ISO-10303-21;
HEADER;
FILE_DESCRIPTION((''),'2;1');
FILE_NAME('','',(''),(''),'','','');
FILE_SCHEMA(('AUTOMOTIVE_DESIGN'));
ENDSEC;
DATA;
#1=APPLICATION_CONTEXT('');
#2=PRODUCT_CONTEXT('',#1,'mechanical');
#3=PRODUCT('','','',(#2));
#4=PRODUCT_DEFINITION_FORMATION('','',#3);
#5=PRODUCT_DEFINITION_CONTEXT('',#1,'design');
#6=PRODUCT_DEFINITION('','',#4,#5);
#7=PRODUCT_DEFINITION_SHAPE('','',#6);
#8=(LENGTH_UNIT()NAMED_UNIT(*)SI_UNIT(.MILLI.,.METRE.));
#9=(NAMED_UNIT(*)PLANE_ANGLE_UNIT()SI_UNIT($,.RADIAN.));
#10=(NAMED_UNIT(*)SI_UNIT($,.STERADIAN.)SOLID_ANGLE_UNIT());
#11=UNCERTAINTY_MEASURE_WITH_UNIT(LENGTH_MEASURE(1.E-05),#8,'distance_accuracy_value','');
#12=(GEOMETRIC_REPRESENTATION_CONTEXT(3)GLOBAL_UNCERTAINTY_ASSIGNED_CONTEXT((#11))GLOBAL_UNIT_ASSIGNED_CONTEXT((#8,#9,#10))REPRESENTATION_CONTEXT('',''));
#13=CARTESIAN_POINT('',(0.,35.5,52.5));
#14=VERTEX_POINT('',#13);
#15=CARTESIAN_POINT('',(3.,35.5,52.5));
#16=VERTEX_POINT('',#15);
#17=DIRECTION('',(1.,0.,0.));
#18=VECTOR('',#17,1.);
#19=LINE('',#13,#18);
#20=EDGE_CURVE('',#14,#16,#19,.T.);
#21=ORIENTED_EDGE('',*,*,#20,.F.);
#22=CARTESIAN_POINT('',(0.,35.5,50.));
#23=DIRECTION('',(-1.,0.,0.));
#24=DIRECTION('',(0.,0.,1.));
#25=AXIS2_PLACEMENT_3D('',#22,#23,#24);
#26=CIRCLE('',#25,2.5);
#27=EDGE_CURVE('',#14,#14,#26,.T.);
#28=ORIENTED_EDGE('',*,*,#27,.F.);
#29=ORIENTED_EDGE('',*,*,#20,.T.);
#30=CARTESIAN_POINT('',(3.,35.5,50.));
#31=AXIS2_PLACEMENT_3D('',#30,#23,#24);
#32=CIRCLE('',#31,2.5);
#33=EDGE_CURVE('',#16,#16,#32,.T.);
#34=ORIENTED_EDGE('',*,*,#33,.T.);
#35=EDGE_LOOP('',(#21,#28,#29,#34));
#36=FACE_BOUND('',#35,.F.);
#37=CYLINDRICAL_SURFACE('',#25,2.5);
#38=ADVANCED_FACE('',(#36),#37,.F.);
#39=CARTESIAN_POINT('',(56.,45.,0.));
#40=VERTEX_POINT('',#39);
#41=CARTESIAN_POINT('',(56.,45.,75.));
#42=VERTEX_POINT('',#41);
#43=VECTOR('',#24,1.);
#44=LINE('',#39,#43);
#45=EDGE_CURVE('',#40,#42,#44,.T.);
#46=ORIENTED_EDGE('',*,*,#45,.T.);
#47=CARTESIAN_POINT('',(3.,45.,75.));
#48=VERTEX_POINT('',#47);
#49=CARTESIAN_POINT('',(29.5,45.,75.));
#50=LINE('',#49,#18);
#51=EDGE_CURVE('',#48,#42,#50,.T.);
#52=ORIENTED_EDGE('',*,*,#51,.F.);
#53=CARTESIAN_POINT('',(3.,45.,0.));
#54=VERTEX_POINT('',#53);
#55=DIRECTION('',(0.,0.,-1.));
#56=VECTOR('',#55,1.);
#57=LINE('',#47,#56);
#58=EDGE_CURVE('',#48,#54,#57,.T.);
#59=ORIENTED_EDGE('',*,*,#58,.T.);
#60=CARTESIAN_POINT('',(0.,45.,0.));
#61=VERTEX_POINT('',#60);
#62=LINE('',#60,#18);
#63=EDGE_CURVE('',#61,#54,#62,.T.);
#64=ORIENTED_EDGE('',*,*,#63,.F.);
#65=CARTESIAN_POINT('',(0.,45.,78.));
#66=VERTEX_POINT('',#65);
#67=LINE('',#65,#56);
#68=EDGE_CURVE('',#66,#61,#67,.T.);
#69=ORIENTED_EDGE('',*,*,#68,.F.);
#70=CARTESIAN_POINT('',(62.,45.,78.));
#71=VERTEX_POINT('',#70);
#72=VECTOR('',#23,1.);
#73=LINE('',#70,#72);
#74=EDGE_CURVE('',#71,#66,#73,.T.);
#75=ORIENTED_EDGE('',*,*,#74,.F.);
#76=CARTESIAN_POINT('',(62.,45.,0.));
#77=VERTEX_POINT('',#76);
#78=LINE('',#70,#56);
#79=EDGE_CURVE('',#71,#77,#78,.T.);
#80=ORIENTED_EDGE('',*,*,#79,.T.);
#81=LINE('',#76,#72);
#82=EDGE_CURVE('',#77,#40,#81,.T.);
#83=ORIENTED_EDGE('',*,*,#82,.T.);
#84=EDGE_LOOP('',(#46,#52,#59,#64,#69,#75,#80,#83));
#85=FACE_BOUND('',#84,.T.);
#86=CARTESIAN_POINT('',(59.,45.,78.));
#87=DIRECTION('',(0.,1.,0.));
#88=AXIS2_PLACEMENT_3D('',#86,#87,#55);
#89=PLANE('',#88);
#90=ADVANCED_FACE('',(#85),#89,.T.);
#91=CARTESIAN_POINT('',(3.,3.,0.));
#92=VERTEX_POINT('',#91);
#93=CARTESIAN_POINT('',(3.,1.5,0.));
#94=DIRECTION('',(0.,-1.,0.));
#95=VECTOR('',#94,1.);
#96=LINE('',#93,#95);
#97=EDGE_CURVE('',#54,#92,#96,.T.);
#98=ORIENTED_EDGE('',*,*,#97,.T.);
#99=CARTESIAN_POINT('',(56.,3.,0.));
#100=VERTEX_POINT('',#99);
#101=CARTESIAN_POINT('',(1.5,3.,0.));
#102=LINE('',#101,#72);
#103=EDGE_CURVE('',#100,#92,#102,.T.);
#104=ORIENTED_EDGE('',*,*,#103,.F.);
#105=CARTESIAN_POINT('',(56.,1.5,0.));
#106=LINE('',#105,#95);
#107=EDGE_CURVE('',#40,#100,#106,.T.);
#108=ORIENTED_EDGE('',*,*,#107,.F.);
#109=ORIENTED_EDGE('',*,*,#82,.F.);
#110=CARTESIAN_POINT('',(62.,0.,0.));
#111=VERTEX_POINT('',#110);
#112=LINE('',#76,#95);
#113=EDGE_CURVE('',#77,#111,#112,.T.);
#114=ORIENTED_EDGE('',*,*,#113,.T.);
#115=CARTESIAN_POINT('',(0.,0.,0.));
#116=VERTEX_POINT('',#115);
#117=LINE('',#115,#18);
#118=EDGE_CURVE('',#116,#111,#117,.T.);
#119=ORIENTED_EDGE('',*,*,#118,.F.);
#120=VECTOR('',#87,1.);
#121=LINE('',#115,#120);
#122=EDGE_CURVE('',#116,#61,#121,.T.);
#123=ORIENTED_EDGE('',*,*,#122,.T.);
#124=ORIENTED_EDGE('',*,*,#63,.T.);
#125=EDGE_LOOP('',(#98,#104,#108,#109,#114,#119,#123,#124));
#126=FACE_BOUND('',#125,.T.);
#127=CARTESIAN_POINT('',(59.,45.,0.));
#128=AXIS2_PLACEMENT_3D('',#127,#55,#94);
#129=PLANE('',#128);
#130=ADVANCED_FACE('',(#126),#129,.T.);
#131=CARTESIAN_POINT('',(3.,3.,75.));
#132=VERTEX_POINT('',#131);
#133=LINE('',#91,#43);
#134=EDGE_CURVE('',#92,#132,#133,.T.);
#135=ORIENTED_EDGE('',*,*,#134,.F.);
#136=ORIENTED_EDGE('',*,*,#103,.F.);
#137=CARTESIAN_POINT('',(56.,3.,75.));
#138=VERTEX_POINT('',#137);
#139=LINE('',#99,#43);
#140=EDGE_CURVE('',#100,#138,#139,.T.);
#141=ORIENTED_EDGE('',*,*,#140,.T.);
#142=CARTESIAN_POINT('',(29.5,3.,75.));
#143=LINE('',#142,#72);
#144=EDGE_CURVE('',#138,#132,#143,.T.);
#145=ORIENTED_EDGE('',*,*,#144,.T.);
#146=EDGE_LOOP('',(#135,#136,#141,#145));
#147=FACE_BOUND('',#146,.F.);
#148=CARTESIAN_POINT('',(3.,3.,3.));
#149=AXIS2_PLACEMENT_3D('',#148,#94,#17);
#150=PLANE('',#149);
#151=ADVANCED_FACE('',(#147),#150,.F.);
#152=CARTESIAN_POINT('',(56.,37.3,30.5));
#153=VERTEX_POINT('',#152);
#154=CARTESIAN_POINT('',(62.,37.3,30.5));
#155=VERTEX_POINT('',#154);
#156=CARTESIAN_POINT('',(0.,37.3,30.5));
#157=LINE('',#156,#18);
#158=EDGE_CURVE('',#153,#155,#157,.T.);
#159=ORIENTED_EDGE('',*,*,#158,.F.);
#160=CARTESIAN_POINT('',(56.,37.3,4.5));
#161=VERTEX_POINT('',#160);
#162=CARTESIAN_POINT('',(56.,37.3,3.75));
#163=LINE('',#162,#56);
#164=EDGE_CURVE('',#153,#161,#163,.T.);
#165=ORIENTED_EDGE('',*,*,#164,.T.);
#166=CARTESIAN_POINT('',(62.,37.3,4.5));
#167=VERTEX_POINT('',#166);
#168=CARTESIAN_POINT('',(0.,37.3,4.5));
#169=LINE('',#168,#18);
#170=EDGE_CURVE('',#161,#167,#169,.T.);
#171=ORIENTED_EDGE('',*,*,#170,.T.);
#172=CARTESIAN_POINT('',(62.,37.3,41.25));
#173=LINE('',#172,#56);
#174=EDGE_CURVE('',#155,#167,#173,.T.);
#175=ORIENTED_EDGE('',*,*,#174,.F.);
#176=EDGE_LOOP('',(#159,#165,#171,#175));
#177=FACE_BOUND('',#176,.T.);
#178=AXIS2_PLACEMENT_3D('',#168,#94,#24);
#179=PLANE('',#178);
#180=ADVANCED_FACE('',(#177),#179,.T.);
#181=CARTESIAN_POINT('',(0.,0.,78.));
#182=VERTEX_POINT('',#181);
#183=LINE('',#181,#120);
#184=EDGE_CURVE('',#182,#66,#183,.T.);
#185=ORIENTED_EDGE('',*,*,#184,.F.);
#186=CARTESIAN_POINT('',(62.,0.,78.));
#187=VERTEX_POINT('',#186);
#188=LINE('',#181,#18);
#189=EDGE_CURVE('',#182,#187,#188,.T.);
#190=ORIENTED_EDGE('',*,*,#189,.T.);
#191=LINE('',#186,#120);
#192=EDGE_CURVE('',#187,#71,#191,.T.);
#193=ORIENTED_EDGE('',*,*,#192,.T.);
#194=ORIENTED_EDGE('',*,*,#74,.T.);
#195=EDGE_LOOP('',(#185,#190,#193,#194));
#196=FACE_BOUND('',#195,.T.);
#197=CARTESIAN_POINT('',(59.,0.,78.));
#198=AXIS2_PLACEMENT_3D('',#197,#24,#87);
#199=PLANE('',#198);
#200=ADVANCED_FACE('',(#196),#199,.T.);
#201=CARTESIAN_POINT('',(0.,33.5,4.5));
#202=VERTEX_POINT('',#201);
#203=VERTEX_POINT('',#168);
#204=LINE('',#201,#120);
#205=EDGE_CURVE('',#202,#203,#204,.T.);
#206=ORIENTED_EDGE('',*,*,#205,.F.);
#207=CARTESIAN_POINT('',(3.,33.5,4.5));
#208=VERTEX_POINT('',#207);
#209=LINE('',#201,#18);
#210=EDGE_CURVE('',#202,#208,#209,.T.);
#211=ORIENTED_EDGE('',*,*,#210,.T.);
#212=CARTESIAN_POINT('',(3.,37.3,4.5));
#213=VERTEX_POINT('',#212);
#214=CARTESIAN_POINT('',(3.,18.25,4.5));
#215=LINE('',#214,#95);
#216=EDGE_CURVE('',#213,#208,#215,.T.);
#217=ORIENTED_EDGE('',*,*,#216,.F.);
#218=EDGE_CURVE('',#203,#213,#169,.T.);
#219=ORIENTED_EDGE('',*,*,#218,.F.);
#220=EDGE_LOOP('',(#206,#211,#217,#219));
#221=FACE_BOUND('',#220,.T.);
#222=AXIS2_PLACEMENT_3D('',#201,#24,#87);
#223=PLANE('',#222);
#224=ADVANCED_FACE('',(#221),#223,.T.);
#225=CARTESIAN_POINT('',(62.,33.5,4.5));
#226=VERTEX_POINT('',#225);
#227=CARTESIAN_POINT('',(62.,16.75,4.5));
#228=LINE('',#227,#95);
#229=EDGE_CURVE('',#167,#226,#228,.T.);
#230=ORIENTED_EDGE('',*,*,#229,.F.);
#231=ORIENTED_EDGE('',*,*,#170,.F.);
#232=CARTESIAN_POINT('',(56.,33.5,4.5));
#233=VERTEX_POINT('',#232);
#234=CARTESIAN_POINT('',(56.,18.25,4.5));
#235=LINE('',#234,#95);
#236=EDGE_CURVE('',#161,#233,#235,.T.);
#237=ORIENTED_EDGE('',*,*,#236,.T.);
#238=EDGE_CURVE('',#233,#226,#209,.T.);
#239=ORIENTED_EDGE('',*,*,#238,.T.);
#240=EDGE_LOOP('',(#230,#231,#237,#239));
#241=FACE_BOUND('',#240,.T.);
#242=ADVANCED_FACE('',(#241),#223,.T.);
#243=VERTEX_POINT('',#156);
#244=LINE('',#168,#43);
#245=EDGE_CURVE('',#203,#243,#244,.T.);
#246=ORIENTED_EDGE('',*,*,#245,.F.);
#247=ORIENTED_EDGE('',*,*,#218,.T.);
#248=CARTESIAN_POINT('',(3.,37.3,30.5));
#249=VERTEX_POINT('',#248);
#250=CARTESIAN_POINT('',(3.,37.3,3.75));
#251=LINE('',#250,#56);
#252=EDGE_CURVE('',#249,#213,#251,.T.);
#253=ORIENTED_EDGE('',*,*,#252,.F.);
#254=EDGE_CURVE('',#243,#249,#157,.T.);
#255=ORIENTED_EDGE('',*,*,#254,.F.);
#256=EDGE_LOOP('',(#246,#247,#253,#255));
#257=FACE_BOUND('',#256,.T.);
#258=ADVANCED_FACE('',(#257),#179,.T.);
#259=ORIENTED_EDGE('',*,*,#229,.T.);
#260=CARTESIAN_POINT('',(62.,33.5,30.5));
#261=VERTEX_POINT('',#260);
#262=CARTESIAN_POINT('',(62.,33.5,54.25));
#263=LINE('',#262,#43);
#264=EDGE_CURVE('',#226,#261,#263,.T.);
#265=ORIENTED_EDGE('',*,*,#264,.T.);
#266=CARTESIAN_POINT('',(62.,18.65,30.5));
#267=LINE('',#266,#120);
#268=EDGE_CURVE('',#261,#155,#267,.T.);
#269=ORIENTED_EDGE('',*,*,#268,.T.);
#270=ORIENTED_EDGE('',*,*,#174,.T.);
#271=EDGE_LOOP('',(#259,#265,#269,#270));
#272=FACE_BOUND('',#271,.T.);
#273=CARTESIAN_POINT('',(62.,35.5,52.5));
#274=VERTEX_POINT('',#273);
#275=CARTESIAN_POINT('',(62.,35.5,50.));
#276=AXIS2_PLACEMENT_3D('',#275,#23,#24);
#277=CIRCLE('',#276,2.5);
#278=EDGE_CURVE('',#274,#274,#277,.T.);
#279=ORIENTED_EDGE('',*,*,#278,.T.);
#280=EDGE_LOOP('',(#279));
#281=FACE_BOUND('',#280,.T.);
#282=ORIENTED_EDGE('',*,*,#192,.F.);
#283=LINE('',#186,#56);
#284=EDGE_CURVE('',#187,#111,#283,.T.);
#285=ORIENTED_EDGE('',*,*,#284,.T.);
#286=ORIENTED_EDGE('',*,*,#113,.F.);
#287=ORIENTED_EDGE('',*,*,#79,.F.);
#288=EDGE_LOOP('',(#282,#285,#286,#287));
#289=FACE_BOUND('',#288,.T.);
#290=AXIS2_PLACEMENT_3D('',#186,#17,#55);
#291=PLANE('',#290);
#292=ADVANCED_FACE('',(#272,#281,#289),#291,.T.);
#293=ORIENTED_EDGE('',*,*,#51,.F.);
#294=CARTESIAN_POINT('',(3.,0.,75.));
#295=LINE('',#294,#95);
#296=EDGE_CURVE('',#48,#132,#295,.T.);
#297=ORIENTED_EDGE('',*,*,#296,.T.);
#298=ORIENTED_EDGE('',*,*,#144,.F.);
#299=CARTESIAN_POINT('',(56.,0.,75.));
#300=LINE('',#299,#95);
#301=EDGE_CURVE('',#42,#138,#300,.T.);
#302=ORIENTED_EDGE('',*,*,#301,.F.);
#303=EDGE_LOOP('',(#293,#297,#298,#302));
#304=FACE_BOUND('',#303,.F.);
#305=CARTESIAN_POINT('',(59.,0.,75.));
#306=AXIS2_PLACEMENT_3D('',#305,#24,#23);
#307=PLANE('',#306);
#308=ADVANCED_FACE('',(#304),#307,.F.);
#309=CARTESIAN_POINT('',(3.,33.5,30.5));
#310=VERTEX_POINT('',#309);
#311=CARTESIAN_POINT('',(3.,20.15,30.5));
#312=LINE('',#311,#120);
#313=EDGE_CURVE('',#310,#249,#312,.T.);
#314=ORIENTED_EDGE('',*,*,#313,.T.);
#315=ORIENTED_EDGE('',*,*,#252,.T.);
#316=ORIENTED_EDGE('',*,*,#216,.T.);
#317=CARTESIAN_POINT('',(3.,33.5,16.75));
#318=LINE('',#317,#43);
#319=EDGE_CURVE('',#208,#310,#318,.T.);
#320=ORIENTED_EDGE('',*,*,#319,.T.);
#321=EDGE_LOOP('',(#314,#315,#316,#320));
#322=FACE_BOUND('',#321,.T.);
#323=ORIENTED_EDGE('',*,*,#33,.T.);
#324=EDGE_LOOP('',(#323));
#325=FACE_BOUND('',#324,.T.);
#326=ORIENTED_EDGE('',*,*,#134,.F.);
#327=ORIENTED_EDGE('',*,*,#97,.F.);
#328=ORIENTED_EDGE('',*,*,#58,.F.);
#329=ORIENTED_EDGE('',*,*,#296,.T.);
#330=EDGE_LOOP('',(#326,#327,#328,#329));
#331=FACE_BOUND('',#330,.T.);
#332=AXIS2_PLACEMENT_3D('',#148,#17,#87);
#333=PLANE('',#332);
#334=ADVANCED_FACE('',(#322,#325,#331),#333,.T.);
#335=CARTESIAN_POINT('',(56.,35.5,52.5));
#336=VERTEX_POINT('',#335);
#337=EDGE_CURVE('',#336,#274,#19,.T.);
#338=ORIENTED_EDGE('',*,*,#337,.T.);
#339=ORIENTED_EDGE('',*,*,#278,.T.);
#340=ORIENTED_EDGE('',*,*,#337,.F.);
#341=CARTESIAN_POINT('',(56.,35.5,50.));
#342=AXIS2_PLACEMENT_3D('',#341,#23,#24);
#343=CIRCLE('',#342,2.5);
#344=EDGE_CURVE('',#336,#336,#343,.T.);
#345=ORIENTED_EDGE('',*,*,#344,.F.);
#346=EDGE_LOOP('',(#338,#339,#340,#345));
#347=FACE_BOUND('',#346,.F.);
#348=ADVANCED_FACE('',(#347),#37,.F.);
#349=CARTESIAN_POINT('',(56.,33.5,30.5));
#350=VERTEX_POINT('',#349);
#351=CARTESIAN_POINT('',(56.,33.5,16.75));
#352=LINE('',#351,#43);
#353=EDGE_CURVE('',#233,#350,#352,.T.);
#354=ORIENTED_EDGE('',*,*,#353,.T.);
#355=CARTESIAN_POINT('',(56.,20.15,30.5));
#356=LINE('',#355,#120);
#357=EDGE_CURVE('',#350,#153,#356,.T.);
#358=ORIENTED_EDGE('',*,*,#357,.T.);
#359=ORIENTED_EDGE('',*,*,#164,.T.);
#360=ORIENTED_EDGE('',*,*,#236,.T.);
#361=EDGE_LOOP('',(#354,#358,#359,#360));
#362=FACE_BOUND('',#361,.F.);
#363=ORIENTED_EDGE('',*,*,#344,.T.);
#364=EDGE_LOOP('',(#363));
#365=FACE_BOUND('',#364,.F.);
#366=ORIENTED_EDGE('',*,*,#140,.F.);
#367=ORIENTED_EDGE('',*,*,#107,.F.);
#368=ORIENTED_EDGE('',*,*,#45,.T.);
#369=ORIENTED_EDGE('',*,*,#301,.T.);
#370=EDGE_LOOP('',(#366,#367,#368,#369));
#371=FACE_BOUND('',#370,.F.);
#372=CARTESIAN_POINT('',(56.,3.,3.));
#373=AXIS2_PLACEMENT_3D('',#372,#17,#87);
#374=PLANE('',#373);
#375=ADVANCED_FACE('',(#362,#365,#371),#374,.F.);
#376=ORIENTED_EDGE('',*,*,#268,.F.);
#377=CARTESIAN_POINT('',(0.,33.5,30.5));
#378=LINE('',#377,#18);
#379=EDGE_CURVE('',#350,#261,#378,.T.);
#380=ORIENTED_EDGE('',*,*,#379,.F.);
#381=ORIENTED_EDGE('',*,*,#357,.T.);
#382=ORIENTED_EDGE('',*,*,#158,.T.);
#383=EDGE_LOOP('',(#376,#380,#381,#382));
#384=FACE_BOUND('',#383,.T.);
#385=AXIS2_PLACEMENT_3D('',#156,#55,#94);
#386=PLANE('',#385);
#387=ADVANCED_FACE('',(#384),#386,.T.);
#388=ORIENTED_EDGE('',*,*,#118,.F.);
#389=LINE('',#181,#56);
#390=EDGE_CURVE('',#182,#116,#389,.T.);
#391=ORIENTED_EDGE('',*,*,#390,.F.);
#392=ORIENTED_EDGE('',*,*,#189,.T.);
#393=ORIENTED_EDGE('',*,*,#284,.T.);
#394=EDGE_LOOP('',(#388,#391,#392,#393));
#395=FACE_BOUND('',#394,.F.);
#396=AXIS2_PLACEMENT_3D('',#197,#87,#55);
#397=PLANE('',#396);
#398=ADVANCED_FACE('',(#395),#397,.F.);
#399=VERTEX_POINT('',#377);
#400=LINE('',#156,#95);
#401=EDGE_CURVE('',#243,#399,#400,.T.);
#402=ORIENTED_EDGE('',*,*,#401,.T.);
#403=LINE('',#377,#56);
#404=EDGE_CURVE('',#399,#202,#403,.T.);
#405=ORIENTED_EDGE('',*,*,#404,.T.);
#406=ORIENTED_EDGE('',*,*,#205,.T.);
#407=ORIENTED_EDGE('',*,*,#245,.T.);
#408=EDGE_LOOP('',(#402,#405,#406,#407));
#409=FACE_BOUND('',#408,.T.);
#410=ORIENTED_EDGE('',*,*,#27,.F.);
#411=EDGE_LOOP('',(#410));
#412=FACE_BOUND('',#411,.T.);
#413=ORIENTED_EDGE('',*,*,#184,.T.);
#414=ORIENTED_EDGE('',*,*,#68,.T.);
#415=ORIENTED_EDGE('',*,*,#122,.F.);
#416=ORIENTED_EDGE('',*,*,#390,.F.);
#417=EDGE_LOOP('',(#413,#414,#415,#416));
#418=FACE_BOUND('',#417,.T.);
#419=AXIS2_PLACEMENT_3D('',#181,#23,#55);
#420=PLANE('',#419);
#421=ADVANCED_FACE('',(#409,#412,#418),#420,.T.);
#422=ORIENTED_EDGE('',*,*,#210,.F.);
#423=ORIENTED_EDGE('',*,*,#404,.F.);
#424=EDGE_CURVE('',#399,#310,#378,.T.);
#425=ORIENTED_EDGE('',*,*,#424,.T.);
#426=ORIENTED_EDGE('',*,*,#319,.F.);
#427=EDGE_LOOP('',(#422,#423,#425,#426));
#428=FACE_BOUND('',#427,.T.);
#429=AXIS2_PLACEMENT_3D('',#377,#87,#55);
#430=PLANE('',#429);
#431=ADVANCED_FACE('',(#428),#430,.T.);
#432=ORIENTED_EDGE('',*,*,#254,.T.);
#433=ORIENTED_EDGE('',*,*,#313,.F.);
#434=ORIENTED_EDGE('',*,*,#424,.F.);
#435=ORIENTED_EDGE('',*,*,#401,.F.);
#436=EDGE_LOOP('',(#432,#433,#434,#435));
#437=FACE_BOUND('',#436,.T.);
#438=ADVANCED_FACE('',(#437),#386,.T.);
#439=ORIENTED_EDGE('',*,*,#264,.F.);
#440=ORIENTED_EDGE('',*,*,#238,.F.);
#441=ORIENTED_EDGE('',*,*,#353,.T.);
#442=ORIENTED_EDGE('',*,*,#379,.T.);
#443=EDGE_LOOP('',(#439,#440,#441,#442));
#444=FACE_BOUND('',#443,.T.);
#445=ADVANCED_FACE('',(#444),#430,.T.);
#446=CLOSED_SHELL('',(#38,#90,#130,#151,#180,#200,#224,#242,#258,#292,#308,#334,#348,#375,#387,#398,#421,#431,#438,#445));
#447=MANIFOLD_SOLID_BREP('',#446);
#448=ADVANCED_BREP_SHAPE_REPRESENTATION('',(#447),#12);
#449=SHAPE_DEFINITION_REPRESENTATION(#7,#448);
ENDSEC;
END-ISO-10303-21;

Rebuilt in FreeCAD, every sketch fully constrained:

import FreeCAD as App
import Part
import Sketcher
from FreeCAD import Vector
Q = App.Units.Quantity


def faces_at(feature, points):
    """Names of the faces that lie closest to the given points."""
    faces = feature.Shape.Faces
    near = lambda p: min(range(len(faces)), key=lambda i: faces[i].distToShape(Part.Vertex(*p))[0])
    return sorted({f"Face{near(p) + 1}" for p in points})

doc = App.newDocument("Part")
body = doc.addObject("PartDesign::Body", "Body")

# Sketch on XZ plane
sketch1 = body.newObject("Sketcher::SketchObject", "Sketch")
sketch1.AttachmentSupport = (doc.getObject("XZ_Plane"), [""])
sketch1.MapMode = "FlatFace"
sketch1.addGeometry([
    Part.LineSegment(Vector(59, 0, 0), Vector(0, 0, 0)),
    Part.LineSegment(Vector(0, 0, 0), Vector(0, 78, 0)),
    Part.LineSegment(Vector(0, 78, 0), Vector(59, 78, 0)),
    Part.LineSegment(Vector(59, 78, 0), Vector(59, 0, 0)),
], False)
sketch1.addConstraint([
    Sketcher.Constraint("Coincident", 0, 2, 1, 1),
    Sketcher.Constraint("Coincident", 1, 2, 2, 1),
    Sketcher.Constraint("Coincident", 2, 2, 3, 1),
    Sketcher.Constraint("Coincident", 3, 2, 0, 1),
    Sketcher.Constraint("Horizontal", 0),
    Sketcher.Constraint("Vertical", 1),
    Sketcher.Constraint("Horizontal", 2),
    Sketcher.Constraint("Vertical", 3),
    Sketcher.Constraint("Coincident", 0, 2, -1, 1),
    Sketcher.Constraint("DistanceX", 0, 2, 0, 1, Q("59 mm")),
    Sketcher.Constraint("DistanceY", 1, 1, 1, 2, Q("78 mm")),
])
pad1 = body.newObject("PartDesign::Pad", "Pad")
pad1.Profile = sketch1
pad1.Length = 45
pad1.Reversed = True
doc.recompute()

thickness = body.newObject("PartDesign::Thickness", "Thickness")
thickness.Base = (pad1, faces_at(pad1, [(39.333, 45, 52)]))
thickness.Value = 3
thickness.Reversed = True
thickness.Join = "Intersection"

# Sketch on XY plane
sketch2 = body.newObject("Sketcher::SketchObject", "Sketch001")
sketch2.AttachmentSupport = (doc.getObject("XY_Plane"), [""])
sketch2.MapMode = "FlatFace"
sketch2.AttachmentOffset = App.Placement(Vector(0, 0, 3), App.Rotation())
sketch2.addGeometry([
    Part.LineSegment(Vector(3, 45, 0), Vector(3, 3, 0)),
    Part.LineSegment(Vector(3, 3, 0), Vector(56, 3, 0)),
    Part.LineSegment(Vector(56, 3, 0), Vector(56, 45, 0)),
    Part.LineSegment(Vector(56, 45, 0), Vector(3, 45, 0)),
], False)
sketch2.addConstraint([
    Sketcher.Constraint("Coincident", 0, 2, 1, 1),
    Sketcher.Constraint("Coincident", 1, 2, 2, 1),
    Sketcher.Constraint("Coincident", 2, 2, 3, 1),
    Sketcher.Constraint("Coincident", 3, 2, 0, 1),
    Sketcher.Constraint("Vertical", 0),
    Sketcher.Constraint("Horizontal", 1),
    Sketcher.Constraint("Vertical", 2),
    Sketcher.Constraint("Horizontal", 3),
    Sketcher.Constraint("DistanceX", 1, 1, 1, 2, Q("53 mm")),
    Sketcher.Constraint("DistanceY", 0, 2, 0, 1, Q("42 mm")),
    Sketcher.Constraint("DistanceX", -1, 1, 0, 2, Q("3 mm")),
    Sketcher.Constraint("DistanceY", -1, 1, 0, 2, Q("3 mm")),
])
pocket1 = body.newObject("PartDesign::Pocket", "Pocket")
pocket1.Profile = sketch2
pocket1.Length = 10

# Sketch on YZ plane
sketch3 = body.newObject("Sketcher::SketchObject", "Sketch002")
sketch3.AttachmentSupport = (doc.getObject("YZ_Plane"), [""])
sketch3.MapMode = "FlatFace"
sketch3.AttachmentOffset = App.Placement(Vector(0, 0, 59), App.Rotation())
sketch3.addGeometry([
    Part.LineSegment(Vector(45, 78, 0), Vector(0, 78, 0)),
    Part.LineSegment(Vector(0, 78, 0), Vector(0, 0, 0)),
    Part.LineSegment(Vector(0, 0, 0), Vector(45, 0, 0)),
    Part.LineSegment(Vector(45, 0, 0), Vector(45, 78, 0)),
], False)
sketch3.addConstraint([
    Sketcher.Constraint("Coincident", 0, 2, 1, 1),
    Sketcher.Constraint("Coincident", 1, 2, 2, 1),
    Sketcher.Constraint("Coincident", 2, 2, 3, 1),
    Sketcher.Constraint("Coincident", 3, 2, 0, 1),
    Sketcher.Constraint("Horizontal", 0),
    Sketcher.Constraint("Vertical", 1),
    Sketcher.Constraint("Horizontal", 2),
    Sketcher.Constraint("Vertical", 3),
    Sketcher.Constraint("Coincident", 1, 2, -1, 1),
    Sketcher.Constraint("DistanceX", 0, 2, 0, 1, Q("45 mm")),
    Sketcher.Constraint("DistanceY", 1, 2, 1, 1, Q("78 mm")),
])
pad2 = body.newObject("PartDesign::Pad", "Pad001")
pad2.Profile = sketch3
pad2.Length = 3

# Sketch on YZ plane
sketch4 = body.newObject("Sketcher::SketchObject", "Sketch003")
sketch4.AttachmentSupport = (doc.getObject("YZ_Plane"), [""])
sketch4.MapMode = "FlatFace"
sketch4.addGeometry([
    Part.LineSegment(Vector(37.3, 30.5, 0), Vector(37.3, 4.5, 0)),
    Part.LineSegment(Vector(37.3, 4.5, 0), Vector(33.5, 4.5, 0)),
    Part.LineSegment(Vector(33.5, 4.5, 0), Vector(33.5, 30.5, 0)),
    Part.LineSegment(Vector(33.5, 30.5, 0), Vector(37.3, 30.5, 0)),
], False)
sketch4.addConstraint([
    Sketcher.Constraint("Coincident", 0, 2, 1, 1),
    Sketcher.Constraint("Coincident", 1, 2, 2, 1),
    Sketcher.Constraint("Coincident", 2, 2, 3, 1),
    Sketcher.Constraint("Coincident", 3, 2, 0, 1),
    Sketcher.Constraint("Vertical", 0),
    Sketcher.Constraint("Horizontal", 1),
    Sketcher.Constraint("Vertical", 2),
    Sketcher.Constraint("Horizontal", 3),
    Sketcher.Constraint("DistanceY", 0, 2, 0, 1, Q("26 mm")),
    Sketcher.Constraint("DistanceX", 1, 2, 1, 1, Q("3.8 mm")),
    Sketcher.Constraint("DistanceY", -1, 1, 0, 2, Q("4.5 mm")),
    Sketcher.Constraint("DistanceX", -1, 1, 1, 2, Q("33.5 mm")),
])
pocket2 = body.newObject("PartDesign::Pocket", "Pocket001")
pocket2.Profile = sketch4
pocket2.Type = "ThroughAll"
pocket2.Reversed = True

# Sketch on YZ plane
sketch5 = body.newObject("Sketcher::SketchObject", "Sketch004")
sketch5.AttachmentSupport = (doc.getObject("YZ_Plane"), [""])
sketch5.MapMode = "FlatFace"
sketch5.addGeometry(Part.Circle(Vector(35.5, 50, 0), Vector(0, 0, 1), 2.5), False)
sketch5.addConstraint([
    Sketcher.Constraint("Diameter", 0, Q("5 mm")),
    Sketcher.Constraint("DistanceY", -1, 1, 0, 3, Q("50 mm")),
    Sketcher.Constraint("DistanceX", -1, 1, 0, 3, Q("35.5 mm")),
])
pocket3 = body.newObject("PartDesign::Pocket", "Pocket002")
pocket3.Profile = sketch5
pocket3.Type = "ThroughAll"
pocket3.Reversed = True

doc.recompute()
